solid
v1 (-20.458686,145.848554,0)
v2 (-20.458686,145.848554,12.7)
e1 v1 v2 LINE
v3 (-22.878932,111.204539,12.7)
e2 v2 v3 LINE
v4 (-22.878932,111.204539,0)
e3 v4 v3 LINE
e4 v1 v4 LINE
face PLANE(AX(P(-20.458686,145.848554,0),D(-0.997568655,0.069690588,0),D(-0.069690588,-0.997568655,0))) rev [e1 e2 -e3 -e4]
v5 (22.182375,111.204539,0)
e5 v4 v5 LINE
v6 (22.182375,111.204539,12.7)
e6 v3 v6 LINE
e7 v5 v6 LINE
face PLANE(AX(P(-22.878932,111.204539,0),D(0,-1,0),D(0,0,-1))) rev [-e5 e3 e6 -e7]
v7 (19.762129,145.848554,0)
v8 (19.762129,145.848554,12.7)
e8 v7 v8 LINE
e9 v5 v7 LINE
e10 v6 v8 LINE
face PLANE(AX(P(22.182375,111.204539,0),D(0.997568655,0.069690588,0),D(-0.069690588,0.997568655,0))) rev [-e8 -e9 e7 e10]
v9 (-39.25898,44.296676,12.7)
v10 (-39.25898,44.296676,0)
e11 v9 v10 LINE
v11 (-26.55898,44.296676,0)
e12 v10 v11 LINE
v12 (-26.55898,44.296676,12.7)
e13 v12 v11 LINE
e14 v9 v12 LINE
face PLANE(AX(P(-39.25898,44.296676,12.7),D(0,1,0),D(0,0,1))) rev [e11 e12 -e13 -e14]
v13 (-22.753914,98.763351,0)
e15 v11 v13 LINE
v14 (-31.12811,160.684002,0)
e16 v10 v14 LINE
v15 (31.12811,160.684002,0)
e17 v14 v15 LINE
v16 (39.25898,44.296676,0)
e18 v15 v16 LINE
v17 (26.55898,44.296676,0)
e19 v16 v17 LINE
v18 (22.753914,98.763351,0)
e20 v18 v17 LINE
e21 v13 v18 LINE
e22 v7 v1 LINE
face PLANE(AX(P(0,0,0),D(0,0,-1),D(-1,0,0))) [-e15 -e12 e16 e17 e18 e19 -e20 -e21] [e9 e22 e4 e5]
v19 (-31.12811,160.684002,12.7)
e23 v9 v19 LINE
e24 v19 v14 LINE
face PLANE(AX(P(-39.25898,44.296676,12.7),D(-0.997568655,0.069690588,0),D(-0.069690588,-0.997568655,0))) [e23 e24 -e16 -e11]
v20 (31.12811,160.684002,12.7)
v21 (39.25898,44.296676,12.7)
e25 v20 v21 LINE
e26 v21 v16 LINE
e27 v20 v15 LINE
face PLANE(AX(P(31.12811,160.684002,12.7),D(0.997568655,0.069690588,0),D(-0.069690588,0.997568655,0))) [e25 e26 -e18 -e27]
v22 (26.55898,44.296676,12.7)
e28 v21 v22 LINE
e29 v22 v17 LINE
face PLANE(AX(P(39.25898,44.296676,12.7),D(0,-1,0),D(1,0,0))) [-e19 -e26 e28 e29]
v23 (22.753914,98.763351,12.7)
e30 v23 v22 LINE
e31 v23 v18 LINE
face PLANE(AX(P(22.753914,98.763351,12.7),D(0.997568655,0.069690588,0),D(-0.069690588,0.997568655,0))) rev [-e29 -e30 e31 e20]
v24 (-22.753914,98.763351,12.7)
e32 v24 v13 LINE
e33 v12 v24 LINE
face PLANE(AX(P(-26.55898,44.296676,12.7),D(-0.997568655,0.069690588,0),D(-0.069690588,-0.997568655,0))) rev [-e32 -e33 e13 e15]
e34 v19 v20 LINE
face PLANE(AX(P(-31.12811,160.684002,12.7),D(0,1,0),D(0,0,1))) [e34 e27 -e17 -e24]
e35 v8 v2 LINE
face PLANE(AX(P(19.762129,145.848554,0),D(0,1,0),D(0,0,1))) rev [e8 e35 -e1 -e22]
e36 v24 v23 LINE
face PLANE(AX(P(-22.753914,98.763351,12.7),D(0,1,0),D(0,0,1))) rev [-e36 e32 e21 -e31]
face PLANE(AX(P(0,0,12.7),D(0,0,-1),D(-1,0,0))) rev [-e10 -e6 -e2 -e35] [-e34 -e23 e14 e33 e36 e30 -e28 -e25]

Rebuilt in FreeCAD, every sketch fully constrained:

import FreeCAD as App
import Part
import Sketcher
from FreeCAD import Vector
Q = App.Units.Quantity

doc = App.newDocument("Part")
body = doc.addObject("PartDesign::Body", "Body")

# Sketch on XY plane
sketch1 = doc.addObject("Sketcher::SketchObject", "Sketch")
body.addObject(sketch1)
sketch1.AttachmentSupport = (doc.XY_Plane, [""])
sketch1.MapMode = "FlatFace"
sketch1.addGeometry([
    Part.LineSegment(Vector(-31, 161, 0), Vector(-39, 44, 0)),  # 0
    Part.LineSegment(Vector(-39, 44, 0), Vector(-27, 44, 0)),  # 1
    Part.LineSegment(Vector(-27, 44, 0), Vector(-23, 99, 0)),  # 2
    Part.LineSegment(Vector(-23, 99, 0), Vector(23, 99, 0)),  # 3
    Part.LineSegment(Vector(23, 99, 0), Vector(27, 44, 0)),  # 4
    Part.LineSegment(Vector(27, 44, 0), Vector(39, 44, 0)),  # 5
    Part.LineSegment(Vector(39, 44, 0), Vector(31, 161, 0)),  # 6
    Part.LineSegment(Vector(31, 161, 0), Vector(-31, 161, 0)),  # 7
], False)
sketch1.addConstraint([
    Sketcher.Constraint("Coincident", 0, 2, 1, 1),
    Sketcher.Constraint("Coincident", 1, 2, 2, 1),
    Sketcher.Constraint("Coincident", 2, 2, 3, 1),
    Sketcher.Constraint("Coincident", 3, 2, 4, 1),
    Sketcher.Constraint("Coincident", 4, 2, 5, 1),
    Sketcher.Constraint("Coincident", 5, 2, 6, 1),
    Sketcher.Constraint("Coincident", 6, 2, 7, 1),
    Sketcher.Constraint("Coincident", 7, 2, 0, 1),
    Sketcher.Constraint("Horizontal", 1),
    Sketcher.Constraint("Horizontal", 3),
    Sketcher.Constraint("Horizontal", 5),
    Sketcher.Constraint("Horizontal", 7),
    Sketcher.Constraint("Symmetric", 1, 2, 4, 2, -2),
    Sketcher.Constraint("Parallel", 0, 2),
    Sketcher.Constraint("Parallel", 4, 6),
    Sketcher.Constraint("Equal", 1, 5),
    Sketcher.Constraint("Equal", 2, 4),
    Sketcher.Constraint("DistanceX", 1, 1, 1, 2, Q("0.5 in")),
    Sketcher.Constraint("DistanceX", 3, 1, 3, 2, 45.507829),
    Sketcher.Constraint("DistanceX", 7, 2, 7, 1, 62.256221),
    Sketcher.Constraint("DistanceX", 0, 2, -1, 1, 39.25898),
    Sketcher.Constraint("DistanceY", -1, 1, 2, 2, 98.763351),
    Sketcher.Constraint("DistanceY", 3, 2, 6, 2, 61.920651),
])
pad1 = doc.addObject("PartDesign::Pad", "Pad")
body.addObject(pad1)
pad1.Profile = sketch1
pad1.Length = Q("0.5 in")

# Sketch on XY plane
sketch2 = doc.addObject("Sketcher::SketchObject", "Sketch001")
body.addObject(sketch2)
sketch2.AttachmentSupport = (doc.XY_Plane, [""])
sketch2.MapMode = "FlatFace"
sketch2.AttachmentOffset = App.Placement(Vector(0, 0, 0.5 * 25.4), App.Rotation())
sketch2.addGeometry([
    Part.LineSegment(Vector(-20, 146, 0), Vector(-23, 111, 0)),
    Part.LineSegment(Vector(-23, 111, 0), Vector(22, 111, 0)),
    Part.LineSegment(Vector(22, 111, 0), Vector(20, 146, 0)),
    Part.LineSegment(Vector(20, 146, 0), Vector(-20, 146, 0)),
], False)
sketch2.addConstraint([
    Sketcher.Constraint("Coincident", 0, 2, 1, 1),
    Sketcher.Constraint("Coincident", 1, 2, 2, 1),
    Sketcher.Constraint("Coincident", 2, 2, 3, 1),
    Sketcher.Constraint("Coincident", 3, 2, 0, 1),
    Sketcher.Constraint("Horizontal", 1),
    Sketcher.Constraint("Horizontal", 3),
    Sketcher.Constraint("Equal", 0, 2),
    Sketcher.Constraint("Distance", 0, 34.728452),
    Sketcher.Constraint("DistanceX", 1, 1, 1, 2, 45.061308),
    Sketcher.Constraint("DistanceX", 3, 2, 3, 1, 40.220815),
    Sketcher.Constraint("DistanceY", -1, 1, 0, 2, 111.204539),
    Sketcher.Constraint("DistanceX", -1, 1, 2, 2, 19.762129),
])
pocket1 = doc.addObject("PartDesign::Pocket", "Pocket")
body.addObject(pocket1)
pocket1.Profile = sketch2
pocket1.Length = Q("0.5 in")

doc.recompute()
